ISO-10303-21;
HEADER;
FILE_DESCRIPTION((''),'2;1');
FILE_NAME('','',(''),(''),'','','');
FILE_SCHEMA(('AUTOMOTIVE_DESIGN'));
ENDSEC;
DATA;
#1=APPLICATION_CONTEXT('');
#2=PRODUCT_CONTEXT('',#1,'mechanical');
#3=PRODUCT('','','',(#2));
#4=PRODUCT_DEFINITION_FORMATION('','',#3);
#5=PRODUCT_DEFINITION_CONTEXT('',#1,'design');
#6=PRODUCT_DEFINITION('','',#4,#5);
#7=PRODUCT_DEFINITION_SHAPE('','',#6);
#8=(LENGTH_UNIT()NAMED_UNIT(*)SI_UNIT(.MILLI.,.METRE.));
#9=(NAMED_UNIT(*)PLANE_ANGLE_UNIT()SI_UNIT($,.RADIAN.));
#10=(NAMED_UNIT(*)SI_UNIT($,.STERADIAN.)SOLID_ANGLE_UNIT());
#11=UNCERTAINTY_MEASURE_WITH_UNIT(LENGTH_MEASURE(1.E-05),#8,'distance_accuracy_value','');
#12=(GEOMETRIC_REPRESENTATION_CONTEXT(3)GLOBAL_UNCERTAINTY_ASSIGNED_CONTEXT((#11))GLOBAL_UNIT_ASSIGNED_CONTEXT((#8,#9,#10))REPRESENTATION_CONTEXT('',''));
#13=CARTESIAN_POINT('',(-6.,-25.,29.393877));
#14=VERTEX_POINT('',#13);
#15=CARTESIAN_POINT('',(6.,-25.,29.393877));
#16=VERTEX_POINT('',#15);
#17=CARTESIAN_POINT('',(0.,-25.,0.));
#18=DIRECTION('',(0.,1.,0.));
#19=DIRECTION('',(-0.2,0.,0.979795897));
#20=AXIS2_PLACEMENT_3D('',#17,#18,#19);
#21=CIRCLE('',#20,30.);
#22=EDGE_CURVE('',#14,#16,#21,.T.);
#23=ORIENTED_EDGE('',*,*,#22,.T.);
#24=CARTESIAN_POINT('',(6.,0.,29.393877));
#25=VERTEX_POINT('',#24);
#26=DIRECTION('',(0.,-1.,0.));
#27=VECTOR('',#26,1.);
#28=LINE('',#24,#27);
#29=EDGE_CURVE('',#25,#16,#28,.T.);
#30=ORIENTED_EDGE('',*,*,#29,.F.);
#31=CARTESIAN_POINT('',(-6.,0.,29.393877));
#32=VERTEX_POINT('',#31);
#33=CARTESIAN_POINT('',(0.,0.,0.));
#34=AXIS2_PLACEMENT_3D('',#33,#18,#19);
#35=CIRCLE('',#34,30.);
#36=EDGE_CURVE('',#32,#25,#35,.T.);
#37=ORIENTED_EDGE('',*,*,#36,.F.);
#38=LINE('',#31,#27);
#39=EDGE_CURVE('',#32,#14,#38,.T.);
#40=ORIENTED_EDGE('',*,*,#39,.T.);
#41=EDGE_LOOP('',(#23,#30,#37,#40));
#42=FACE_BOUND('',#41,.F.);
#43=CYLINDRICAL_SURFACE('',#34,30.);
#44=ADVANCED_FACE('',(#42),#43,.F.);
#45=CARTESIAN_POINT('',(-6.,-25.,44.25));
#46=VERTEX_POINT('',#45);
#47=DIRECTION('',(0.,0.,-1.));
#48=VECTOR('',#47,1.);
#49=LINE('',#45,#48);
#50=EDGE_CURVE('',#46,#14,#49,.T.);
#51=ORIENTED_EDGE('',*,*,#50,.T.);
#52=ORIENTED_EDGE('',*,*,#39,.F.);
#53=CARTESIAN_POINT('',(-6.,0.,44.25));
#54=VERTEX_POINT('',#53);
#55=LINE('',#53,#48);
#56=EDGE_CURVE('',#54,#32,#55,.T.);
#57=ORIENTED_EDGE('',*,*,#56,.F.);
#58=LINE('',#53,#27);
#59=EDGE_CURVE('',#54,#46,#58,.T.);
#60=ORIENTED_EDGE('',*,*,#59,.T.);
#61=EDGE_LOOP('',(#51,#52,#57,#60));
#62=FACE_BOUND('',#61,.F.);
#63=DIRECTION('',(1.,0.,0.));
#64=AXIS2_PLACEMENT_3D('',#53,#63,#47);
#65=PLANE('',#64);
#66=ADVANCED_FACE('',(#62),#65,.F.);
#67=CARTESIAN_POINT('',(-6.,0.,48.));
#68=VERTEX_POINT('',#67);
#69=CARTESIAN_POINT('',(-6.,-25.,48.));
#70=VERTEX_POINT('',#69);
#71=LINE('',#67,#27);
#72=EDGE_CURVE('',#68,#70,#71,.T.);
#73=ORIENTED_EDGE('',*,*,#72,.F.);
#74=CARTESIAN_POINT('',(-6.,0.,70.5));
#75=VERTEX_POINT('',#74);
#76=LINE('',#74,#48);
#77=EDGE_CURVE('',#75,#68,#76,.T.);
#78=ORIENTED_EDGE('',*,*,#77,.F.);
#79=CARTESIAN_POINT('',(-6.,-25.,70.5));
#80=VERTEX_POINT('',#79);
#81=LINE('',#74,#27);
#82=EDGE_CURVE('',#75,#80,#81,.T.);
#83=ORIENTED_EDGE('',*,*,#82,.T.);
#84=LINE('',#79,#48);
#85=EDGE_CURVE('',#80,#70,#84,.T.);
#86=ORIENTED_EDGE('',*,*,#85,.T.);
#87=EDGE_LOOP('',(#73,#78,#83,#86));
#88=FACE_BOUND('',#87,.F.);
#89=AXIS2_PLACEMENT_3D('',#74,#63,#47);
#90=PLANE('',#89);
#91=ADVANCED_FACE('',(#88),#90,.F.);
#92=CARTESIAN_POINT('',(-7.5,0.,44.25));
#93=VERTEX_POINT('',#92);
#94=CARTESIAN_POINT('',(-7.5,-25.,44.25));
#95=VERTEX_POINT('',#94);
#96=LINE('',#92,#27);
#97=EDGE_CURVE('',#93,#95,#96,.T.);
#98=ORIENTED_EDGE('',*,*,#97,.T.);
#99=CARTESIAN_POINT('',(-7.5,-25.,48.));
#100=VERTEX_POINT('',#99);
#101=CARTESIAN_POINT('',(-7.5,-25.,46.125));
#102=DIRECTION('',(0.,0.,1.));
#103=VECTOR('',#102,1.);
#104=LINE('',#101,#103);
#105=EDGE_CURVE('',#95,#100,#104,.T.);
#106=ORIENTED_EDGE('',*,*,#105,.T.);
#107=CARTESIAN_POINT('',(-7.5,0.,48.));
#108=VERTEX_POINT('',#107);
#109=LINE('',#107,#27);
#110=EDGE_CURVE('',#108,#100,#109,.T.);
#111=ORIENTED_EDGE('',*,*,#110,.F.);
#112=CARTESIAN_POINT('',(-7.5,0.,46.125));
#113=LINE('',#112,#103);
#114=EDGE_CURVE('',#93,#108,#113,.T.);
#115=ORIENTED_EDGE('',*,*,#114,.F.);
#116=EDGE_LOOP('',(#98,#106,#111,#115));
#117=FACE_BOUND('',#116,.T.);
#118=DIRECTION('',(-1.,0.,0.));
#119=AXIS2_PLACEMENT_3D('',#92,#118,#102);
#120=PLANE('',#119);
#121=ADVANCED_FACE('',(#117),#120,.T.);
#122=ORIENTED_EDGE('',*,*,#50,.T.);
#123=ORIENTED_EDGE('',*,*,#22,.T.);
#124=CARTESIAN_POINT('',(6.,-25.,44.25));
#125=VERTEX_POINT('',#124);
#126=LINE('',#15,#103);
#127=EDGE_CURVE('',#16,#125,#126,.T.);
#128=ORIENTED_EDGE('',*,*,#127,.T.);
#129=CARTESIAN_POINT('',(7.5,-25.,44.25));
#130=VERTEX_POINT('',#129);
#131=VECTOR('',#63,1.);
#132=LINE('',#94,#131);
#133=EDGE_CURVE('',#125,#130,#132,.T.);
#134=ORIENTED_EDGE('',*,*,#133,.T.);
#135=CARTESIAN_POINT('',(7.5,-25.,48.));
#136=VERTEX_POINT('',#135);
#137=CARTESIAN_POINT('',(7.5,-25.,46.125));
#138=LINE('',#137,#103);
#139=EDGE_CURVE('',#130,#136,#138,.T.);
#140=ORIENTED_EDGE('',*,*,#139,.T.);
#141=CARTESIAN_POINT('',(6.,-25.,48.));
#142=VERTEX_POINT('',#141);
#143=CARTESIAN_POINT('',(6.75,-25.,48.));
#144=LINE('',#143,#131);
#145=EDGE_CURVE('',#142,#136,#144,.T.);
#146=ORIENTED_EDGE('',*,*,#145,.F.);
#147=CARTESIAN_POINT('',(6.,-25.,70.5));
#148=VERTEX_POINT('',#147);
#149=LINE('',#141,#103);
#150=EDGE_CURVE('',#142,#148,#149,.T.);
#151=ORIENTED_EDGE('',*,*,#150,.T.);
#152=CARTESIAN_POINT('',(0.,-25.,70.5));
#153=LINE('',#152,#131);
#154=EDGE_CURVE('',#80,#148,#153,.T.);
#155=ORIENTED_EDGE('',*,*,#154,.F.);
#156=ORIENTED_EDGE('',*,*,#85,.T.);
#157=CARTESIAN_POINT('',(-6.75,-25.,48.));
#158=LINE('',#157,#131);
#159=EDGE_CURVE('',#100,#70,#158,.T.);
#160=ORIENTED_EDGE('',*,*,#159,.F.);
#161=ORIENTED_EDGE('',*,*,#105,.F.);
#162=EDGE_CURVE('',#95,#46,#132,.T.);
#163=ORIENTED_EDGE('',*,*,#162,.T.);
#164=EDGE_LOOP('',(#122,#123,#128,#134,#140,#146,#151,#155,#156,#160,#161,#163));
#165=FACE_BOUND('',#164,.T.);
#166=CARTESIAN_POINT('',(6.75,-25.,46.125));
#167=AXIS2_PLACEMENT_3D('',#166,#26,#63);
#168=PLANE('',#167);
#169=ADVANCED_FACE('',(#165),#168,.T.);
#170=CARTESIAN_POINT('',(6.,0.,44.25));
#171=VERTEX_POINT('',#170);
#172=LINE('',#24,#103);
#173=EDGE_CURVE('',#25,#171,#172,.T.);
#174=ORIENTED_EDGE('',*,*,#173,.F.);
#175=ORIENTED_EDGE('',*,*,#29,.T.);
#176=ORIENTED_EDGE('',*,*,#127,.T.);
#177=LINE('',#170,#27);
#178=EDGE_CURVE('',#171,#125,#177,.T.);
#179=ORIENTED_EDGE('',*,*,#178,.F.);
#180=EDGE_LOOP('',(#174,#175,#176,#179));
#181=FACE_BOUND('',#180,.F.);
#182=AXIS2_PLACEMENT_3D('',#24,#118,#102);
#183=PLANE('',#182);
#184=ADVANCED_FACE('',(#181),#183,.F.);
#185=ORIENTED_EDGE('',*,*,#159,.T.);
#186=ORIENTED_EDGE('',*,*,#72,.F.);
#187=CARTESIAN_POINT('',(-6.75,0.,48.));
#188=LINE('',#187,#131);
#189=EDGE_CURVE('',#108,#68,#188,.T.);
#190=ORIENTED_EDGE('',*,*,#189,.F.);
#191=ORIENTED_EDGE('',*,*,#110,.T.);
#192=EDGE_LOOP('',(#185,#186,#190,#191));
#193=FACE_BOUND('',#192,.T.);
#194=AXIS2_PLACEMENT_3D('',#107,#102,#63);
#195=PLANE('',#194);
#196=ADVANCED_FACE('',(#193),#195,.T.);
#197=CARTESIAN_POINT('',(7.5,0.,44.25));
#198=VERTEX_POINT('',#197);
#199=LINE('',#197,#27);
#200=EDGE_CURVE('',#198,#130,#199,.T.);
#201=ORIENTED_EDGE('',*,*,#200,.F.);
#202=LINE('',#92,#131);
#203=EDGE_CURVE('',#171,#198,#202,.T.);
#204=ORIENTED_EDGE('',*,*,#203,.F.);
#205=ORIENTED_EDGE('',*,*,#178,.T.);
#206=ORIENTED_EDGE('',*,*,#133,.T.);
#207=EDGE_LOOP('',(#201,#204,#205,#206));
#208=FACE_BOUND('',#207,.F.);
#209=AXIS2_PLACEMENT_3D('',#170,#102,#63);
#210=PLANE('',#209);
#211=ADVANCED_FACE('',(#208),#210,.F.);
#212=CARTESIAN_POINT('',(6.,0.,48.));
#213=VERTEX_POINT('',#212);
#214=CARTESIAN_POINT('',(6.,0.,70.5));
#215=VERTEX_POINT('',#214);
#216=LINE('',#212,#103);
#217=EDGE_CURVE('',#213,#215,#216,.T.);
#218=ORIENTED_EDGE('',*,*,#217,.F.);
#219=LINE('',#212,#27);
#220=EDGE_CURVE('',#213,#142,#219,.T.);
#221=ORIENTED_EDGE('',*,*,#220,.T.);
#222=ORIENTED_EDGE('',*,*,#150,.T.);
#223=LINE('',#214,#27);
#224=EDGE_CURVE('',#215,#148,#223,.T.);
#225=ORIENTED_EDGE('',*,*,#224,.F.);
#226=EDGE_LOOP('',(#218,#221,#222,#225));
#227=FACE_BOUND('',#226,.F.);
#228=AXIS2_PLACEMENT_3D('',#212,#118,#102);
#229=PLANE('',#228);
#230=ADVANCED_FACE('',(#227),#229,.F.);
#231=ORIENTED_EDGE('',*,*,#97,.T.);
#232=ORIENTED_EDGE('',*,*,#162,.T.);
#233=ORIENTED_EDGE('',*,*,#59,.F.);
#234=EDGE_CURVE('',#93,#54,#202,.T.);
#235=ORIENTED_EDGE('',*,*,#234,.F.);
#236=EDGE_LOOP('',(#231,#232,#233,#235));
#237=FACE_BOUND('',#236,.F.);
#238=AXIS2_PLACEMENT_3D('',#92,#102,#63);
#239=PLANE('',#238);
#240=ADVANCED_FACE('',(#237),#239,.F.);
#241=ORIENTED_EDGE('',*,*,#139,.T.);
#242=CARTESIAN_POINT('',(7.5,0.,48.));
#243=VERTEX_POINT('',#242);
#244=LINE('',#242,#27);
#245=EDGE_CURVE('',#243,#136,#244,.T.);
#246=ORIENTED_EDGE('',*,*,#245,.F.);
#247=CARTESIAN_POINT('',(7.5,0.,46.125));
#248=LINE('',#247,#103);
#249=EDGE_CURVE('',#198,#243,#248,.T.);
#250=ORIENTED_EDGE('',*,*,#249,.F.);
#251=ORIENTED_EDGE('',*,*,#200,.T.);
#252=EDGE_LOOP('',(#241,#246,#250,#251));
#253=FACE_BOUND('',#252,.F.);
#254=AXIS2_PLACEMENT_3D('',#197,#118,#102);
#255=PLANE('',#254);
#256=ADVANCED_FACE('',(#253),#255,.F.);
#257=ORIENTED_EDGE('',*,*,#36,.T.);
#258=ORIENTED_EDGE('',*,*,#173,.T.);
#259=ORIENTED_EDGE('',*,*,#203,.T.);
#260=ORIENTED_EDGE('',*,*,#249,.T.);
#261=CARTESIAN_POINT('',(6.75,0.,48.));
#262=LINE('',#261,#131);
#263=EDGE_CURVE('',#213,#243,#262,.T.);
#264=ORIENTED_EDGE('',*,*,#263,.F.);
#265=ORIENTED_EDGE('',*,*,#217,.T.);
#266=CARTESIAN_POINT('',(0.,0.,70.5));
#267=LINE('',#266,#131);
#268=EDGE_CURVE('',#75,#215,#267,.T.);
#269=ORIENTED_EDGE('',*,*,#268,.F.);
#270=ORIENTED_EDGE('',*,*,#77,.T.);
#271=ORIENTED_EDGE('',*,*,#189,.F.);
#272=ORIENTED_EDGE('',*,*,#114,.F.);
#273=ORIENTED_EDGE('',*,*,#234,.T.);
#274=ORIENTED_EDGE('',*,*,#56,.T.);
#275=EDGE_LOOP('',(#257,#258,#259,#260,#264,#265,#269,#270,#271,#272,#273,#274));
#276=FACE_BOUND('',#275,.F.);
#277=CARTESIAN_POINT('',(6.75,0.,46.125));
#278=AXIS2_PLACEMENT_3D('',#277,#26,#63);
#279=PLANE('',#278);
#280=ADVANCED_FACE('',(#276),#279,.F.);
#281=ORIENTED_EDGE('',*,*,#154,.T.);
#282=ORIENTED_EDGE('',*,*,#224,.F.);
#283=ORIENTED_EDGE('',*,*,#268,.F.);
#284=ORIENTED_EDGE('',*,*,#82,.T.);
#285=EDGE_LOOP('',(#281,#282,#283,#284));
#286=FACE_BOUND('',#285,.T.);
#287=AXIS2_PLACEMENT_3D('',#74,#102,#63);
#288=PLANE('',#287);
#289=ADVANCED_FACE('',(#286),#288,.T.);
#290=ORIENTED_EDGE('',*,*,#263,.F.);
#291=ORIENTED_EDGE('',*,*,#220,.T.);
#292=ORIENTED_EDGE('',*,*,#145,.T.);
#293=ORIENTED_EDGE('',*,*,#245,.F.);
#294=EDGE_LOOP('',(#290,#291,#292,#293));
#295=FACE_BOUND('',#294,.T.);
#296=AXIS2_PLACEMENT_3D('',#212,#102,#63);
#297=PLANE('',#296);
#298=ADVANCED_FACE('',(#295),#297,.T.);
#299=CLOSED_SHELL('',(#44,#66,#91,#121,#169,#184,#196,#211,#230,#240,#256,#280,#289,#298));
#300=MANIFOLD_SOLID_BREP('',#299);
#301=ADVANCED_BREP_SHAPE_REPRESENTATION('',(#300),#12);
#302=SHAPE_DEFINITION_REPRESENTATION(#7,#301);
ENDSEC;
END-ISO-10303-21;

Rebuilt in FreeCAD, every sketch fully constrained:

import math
import FreeCAD as App
import Part
import Sketcher
from FreeCAD import Vector

doc = App.newDocument("Part")
body = doc.addObject("PartDesign::Body", "Body")

sketch1 = doc.addObject("Sketcher::SketchObject", "Sketch")
body.addObject(sketch1)
sketch1.AttachmentSupport = (doc.XZ_Plane, [""])
sketch1.MapMode = "FlatFace"
sketch1.addGeometry([
    Part.LineSegment(Vector(7.5, 44.2, 0), Vector(7.5, 48, 0)),
    Part.LineSegment(Vector(7.5, 48, 0), Vector(6, 48, 0)),
    Part.LineSegment(Vector(6, 48, 0), Vector(6, 70.5, 0)),
    Part.LineSegment(Vector(6, 70.5, 0), Vector(-6, 70.5, 0)),
    Part.LineSegment(Vector(-6, 70.5, 0), Vector(-6, 48, 0)),
    Part.LineSegment(Vector(-6, 48, 0), Vector(-7.5, 48, 0)),
    Part.LineSegment(Vector(-7.5, 48, 0), Vector(-7.5, 44.2, 0)),
    Part.LineSegment(Vector(-7.5, 44.2, 0), Vector(-6, 44.2, 0)),
    Part.LineSegment(Vector(-6, 44.2, 0), Vector(-6, 29.4, 0)),
    Part.ArcOfCircle(Part.Circle(Vector(0, 0, 0), Vector(0, 0, 1), 30), math.radians(78), math.radians(102)),
    Part.LineSegment(Vector(6, 29.4, 0), Vector(6, 44.2, 0)),
    Part.LineSegment(Vector(6, 44.2, 0), Vector(7.5, 44.2, 0)),
], False)
sketch1.addConstraint([
    Sketcher.Constraint("Coincident", 0, 2, 1, 1),
    Sketcher.Constraint("Coincident", 1, 2, 2, 1),
    Sketcher.Constraint("Coincident", 2, 2, 3, 1),
    Sketcher.Constraint("Coincident", 3, 2, 4, 1),
    Sketcher.Constraint("Coincident", 4, 2, 5, 1),
    Sketcher.Constraint("Coincident", 5, 2, 6, 1),
    Sketcher.Constraint("Coincident", 6, 2, 7, 1),
    Sketcher.Constraint("Coincident", 7, 2, 8, 1),
    Sketcher.Constraint("Coincident", 8, 2, 9, 2),
    Sketcher.Constraint("Coincident", 9, 1, 10, 1),
    Sketcher.Constraint("Coincident", 10, 2, 11, 1),
    Sketcher.Constraint("Coincident", 11, 2, 0, 1),
    Sketcher.Constraint("Vertical", 0),
    Sketcher.Constraint("Horizontal", 1),
    Sketcher.Constraint("Vertical", 2),
    Sketcher.Constraint("Horizontal", 3),
    Sketcher.Constraint("Vertical", 4),
    Sketcher.Constraint("Horizontal", 5),
    Sketcher.Constraint("Vertical", 6),
    Sketcher.Constraint("Horizontal", 7),
    Sketcher.Constraint("Vertical", 8),
    Sketcher.Constraint("Vertical", 10),
    Sketcher.Constraint("Horizontal", 11),
    Sketcher.Constraint("Coincident", 9, 3, -1, 1),
    Sketcher.Constraint("Symmetric", 1, 2, 4, 2, -2),
    Sketcher.Constraint("Symmetric", 7, 2, 10, 2, -2),
    Sketcher.Constraint("Vertical", 4, 2, 7, 2),
    Sketcher.Constraint("Equal", 1, 5),
    Sketcher.Constraint("Radius", 9, 30.0),
    Sketcher.Constraint("DistanceX", 3, 2, 3, 1, 12.0),
    Sketcher.Constraint("DistanceX", 1, 2, 1, 1, 1.5),
    Sketcher.Constraint("DistanceY", 2, 1, 2, 2, 22.5),
    Sketcher.Constraint("DistanceY", -1, 1, 0, 2, 48.0),
    Sketcher.Constraint("DistanceY", 0, 1, 0, 2, 3.75),
])
pad1 = doc.addObject("PartDesign::Pad", "Pad")
body.addObject(pad1)
pad1.Profile = sketch1
pad1.Length = 25

doc.recompute()
